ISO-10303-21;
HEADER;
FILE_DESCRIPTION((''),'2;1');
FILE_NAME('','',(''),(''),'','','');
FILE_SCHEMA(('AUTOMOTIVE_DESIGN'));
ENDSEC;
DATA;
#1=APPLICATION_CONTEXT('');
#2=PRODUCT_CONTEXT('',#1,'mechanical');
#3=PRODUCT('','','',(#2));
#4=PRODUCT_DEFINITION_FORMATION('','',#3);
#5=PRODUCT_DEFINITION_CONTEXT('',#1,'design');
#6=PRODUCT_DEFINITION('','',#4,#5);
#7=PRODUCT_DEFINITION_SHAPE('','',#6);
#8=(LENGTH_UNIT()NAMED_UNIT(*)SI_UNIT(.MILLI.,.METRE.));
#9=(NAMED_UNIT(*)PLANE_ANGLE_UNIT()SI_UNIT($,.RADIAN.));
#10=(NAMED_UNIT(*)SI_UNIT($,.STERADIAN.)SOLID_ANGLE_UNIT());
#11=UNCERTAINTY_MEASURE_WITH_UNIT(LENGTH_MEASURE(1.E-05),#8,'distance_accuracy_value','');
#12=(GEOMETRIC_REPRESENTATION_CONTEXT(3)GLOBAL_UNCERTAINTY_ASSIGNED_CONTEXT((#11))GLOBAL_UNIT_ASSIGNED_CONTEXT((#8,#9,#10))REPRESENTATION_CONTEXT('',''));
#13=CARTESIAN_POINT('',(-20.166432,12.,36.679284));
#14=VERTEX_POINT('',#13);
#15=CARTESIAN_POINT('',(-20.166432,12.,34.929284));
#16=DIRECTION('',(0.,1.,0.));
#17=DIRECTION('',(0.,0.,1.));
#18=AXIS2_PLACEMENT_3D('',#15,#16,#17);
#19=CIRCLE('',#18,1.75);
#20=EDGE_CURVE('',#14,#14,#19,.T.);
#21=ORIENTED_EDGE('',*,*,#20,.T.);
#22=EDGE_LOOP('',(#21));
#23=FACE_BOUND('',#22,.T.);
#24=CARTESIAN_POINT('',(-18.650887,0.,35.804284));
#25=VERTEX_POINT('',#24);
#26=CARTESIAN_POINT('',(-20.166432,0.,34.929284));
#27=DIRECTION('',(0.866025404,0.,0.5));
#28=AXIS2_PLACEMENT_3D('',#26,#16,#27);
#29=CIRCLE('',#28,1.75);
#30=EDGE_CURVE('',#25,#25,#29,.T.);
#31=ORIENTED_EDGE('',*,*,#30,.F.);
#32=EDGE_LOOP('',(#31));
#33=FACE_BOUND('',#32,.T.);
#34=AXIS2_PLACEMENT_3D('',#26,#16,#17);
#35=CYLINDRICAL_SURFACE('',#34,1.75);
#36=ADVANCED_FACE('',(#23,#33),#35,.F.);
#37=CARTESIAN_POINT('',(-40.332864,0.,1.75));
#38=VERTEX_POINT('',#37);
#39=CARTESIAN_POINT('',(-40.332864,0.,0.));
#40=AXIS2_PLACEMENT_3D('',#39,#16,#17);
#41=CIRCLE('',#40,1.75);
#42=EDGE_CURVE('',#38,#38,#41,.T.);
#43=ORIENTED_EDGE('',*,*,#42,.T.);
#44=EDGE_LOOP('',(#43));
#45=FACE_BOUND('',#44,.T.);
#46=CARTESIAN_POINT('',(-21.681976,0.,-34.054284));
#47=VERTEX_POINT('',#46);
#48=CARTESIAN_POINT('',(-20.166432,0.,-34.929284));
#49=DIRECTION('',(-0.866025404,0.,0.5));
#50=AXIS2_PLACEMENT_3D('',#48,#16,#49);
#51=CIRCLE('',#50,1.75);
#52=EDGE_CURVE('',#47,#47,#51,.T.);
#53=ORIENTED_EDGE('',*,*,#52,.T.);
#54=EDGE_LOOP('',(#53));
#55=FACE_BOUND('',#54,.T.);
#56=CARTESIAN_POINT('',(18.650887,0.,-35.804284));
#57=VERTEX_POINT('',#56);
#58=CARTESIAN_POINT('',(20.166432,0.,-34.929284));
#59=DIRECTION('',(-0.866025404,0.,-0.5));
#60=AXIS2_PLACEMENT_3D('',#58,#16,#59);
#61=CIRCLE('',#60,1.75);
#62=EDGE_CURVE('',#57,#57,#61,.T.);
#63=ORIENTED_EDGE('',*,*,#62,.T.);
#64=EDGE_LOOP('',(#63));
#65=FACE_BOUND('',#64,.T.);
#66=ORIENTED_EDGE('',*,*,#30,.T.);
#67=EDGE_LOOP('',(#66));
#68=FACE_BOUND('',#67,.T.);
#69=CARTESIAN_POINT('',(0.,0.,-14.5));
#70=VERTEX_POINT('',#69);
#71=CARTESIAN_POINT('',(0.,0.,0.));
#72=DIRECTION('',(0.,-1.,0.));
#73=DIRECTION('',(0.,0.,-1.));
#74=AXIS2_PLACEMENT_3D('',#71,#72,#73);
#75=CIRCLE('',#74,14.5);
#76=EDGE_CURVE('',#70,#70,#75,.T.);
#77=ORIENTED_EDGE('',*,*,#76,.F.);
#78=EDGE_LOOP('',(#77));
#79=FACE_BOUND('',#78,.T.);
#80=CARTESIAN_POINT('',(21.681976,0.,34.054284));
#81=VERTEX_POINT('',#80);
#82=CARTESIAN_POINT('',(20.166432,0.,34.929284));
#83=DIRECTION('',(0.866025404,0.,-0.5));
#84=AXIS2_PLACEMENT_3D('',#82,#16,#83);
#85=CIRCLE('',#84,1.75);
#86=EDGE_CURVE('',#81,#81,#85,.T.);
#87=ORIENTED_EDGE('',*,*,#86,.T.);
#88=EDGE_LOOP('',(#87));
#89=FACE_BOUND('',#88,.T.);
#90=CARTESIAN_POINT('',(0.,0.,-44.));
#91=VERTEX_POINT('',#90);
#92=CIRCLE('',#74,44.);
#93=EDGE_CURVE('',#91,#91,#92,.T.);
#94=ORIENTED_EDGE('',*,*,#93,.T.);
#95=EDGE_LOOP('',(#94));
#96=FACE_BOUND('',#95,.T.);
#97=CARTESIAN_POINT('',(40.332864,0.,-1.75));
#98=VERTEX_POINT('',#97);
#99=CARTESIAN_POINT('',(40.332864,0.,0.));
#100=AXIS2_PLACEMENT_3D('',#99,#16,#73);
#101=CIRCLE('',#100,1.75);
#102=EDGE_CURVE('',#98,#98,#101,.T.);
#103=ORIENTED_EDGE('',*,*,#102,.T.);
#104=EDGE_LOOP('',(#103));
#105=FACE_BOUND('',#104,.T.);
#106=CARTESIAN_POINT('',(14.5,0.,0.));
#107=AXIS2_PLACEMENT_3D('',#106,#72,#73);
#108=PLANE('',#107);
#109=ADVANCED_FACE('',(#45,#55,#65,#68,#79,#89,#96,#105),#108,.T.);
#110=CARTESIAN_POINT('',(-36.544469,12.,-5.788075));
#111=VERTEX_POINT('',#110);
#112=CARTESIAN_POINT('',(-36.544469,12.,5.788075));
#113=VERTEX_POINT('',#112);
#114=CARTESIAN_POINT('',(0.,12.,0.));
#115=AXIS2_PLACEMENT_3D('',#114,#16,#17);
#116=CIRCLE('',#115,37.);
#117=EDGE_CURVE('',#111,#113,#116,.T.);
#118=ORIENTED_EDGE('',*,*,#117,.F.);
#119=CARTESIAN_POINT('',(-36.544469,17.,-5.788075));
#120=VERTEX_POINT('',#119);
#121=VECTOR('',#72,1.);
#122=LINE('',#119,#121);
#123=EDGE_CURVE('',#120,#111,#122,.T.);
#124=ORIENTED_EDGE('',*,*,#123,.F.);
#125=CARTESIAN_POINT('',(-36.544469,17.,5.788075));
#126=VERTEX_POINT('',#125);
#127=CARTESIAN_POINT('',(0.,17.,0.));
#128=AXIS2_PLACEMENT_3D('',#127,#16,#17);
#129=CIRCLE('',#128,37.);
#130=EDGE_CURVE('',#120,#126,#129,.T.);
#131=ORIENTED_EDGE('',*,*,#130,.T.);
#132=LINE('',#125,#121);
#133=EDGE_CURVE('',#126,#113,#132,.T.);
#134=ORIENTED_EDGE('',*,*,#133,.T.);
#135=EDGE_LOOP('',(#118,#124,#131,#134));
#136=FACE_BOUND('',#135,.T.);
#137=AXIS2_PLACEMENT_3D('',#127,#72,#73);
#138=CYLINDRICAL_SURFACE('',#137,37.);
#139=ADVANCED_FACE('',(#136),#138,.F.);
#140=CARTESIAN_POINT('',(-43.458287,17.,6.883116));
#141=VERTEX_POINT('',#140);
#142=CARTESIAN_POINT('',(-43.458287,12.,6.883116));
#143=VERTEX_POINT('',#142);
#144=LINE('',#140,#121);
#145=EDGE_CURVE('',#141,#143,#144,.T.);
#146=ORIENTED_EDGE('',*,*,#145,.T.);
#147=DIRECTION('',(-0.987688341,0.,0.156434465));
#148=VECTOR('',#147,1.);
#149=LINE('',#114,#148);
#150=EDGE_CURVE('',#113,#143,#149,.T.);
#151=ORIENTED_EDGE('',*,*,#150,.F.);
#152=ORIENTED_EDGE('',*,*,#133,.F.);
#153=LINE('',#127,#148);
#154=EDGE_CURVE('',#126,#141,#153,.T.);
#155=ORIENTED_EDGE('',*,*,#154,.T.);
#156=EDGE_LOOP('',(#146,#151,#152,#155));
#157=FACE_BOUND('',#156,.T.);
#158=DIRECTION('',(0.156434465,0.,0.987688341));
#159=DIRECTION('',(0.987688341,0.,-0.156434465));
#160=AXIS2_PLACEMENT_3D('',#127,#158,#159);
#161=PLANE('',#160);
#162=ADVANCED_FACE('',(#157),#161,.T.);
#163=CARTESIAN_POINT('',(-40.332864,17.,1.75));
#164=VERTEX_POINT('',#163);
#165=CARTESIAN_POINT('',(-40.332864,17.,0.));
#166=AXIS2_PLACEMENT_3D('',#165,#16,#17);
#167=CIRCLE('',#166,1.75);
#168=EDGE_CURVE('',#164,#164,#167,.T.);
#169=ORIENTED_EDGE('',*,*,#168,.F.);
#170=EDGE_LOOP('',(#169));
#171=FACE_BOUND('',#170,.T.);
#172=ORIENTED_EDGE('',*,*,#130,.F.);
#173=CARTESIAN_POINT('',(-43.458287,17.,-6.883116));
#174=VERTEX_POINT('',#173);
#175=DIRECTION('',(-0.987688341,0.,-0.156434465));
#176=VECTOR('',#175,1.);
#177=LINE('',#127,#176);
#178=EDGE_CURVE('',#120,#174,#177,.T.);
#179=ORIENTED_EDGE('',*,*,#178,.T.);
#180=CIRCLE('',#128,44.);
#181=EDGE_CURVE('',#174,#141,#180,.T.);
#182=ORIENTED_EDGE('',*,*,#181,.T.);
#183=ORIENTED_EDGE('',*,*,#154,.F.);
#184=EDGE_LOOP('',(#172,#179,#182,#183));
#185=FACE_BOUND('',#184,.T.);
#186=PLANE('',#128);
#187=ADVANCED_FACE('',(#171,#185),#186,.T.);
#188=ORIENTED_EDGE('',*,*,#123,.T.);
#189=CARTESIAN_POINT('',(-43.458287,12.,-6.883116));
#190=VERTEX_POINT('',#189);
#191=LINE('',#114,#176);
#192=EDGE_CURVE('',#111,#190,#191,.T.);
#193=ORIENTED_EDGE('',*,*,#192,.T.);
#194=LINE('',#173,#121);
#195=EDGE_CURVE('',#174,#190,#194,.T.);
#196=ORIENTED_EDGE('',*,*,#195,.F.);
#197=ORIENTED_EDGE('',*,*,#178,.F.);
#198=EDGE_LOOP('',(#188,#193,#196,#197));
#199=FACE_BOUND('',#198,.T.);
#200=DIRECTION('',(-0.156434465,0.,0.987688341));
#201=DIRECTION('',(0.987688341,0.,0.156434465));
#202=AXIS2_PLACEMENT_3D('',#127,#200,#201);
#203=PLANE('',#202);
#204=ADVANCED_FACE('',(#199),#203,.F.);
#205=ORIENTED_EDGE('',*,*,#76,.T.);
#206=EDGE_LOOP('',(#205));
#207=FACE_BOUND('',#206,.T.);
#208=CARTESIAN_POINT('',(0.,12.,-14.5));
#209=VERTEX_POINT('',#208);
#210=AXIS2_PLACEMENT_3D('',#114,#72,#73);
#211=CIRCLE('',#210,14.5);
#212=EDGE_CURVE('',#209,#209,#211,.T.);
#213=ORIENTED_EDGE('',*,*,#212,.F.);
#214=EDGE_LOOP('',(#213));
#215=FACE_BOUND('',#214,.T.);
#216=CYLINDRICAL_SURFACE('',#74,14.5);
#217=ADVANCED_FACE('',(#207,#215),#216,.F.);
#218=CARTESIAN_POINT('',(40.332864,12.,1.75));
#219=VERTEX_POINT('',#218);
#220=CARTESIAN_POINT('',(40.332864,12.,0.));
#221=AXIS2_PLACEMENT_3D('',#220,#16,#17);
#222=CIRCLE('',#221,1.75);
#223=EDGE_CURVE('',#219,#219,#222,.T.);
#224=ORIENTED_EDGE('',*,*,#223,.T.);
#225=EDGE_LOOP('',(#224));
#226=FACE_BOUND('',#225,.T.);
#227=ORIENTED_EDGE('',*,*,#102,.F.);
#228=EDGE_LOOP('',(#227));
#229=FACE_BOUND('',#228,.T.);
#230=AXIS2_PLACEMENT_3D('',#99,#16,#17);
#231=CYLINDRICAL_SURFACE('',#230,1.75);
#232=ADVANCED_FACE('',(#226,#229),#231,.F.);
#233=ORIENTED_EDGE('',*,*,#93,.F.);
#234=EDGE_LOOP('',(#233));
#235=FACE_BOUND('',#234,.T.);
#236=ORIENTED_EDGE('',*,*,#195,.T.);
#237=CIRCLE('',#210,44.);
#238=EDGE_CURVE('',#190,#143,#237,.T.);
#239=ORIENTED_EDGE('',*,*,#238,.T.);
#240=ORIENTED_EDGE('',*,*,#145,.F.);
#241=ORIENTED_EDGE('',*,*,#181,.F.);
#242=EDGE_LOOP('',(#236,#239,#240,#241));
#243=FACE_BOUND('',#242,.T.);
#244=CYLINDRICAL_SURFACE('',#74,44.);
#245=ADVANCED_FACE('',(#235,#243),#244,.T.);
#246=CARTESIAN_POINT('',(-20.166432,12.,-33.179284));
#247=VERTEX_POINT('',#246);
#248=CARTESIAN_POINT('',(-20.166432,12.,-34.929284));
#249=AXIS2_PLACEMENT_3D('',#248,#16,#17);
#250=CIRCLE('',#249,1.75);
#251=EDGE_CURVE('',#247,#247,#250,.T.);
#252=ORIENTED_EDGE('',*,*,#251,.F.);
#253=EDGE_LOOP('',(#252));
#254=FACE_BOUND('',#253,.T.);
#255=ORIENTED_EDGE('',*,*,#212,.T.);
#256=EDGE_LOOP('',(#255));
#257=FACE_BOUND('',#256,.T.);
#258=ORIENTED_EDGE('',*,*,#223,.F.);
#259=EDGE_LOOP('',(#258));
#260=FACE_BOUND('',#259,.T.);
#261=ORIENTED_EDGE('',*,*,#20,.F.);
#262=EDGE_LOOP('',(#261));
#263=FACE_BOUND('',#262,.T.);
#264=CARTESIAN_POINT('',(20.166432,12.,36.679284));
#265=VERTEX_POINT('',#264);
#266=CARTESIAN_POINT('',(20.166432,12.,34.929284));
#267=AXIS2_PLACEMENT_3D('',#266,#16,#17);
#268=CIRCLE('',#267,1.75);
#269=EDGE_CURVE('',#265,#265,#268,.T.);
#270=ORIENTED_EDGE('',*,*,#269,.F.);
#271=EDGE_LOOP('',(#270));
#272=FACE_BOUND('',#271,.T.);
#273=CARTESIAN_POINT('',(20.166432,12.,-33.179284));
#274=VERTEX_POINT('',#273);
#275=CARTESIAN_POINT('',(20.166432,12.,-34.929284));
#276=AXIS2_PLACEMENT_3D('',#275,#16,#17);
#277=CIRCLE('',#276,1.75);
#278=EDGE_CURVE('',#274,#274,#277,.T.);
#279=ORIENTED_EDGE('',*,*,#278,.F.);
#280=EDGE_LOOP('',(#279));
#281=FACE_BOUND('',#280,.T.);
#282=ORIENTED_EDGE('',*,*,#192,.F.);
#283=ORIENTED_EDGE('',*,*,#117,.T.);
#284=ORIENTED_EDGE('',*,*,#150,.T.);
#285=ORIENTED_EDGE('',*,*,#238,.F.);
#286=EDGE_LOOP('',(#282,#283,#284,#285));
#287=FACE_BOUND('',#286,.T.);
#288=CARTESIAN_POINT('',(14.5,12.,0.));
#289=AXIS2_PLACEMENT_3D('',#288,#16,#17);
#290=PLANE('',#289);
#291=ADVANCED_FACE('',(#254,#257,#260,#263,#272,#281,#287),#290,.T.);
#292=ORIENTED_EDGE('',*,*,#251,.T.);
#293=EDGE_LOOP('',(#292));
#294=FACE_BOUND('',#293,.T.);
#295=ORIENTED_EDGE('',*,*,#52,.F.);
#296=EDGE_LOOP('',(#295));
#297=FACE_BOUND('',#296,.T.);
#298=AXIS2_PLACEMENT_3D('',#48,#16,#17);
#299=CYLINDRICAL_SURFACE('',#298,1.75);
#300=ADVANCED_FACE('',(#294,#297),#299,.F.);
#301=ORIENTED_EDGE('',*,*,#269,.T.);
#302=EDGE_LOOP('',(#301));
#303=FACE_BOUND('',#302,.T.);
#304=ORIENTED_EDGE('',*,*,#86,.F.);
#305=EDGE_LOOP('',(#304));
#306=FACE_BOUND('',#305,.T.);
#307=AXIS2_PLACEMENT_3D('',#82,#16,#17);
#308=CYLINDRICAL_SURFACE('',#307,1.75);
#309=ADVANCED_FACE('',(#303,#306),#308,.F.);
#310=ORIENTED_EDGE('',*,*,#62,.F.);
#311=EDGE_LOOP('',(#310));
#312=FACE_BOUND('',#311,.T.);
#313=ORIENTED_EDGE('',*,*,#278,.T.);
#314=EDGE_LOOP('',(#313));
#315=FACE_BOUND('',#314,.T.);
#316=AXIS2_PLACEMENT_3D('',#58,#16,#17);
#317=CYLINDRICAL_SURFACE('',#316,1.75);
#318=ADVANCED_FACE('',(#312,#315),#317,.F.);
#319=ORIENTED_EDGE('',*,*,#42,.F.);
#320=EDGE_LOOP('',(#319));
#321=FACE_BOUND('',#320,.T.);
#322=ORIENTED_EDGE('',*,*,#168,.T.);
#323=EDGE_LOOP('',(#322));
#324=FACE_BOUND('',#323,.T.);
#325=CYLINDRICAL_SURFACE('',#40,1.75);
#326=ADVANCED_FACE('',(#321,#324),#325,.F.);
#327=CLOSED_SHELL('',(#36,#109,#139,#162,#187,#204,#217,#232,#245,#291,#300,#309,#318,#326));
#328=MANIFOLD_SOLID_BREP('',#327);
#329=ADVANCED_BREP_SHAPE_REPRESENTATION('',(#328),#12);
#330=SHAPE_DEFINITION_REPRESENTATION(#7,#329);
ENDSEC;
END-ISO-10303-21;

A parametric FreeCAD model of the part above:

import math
import FreeCAD as App
import Part
import Sketcher
from FreeCAD import Vector
Q = App.Units.Quantity


def add_polygon(sketch, points):
    """Adds a closed chain of lines whose ends are joined by coincident constraints."""
    first, n = sketch.GeometryCount, len(points)
    for a, b in zip(points, points[1:] + points[:1]):
        sketch.addGeometry(Part.LineSegment(App.Vector(*a, 0), App.Vector(*b, 0)), False)
    for i in range(n):
        sketch.addConstraint(Sketcher.Constraint("Coincident", first + i, 2, first + (i + 1) % n, 1))

doc = App.newDocument("Part")
body = doc.addObject("PartDesign::Body", "Body")

sketch1 = doc.addObject("Sketcher::SketchObject", "Sketch")
body.addObject(sketch1)
sketch1.AttachmentSupport = (doc.XY_Plane, [""])
sketch1.MapMode = "FlatFace"
add_polygon(sketch1, [(14.5, 12), (14.5, 0), (44, 0), (44, 12)])
sketch1.addConstraint(Sketcher.Constraint("Vertical", 0))
sketch1.addConstraint(Sketcher.Constraint("Horizontal", 1))
sketch1.addConstraint(Sketcher.Constraint("Vertical", 2))
sketch1.addConstraint(Sketcher.Constraint("Horizontal", 3))
sketch1.addConstraint(Sketcher.Constraint("PointOnObject", 0, 2, -1))
sketch1.addConstraint(Sketcher.Constraint("DistanceY", 0, 2, 0, 1, 12.0))
sketch1.addConstraint(Sketcher.Constraint("DistanceX", 1, 1, 1, 2, 29.5))
sketch1.addConstraint(Sketcher.Constraint("DistanceX", -1, 1, 1, 2, 44.0))
revolution = doc.addObject("PartDesign::Revolution", "Revolution")
body.addObject(revolution)
revolution.Profile = sketch1
revolution.ReferenceAxis = (sketch1, ["V_Axis"])
revolution.Angle = 360

sketch2 = doc.addObject("Sketcher::SketchObject", "Sketch001")
body.addObject(sketch2)
sketch2.AttachmentSupport = (doc.XZ_Plane, [""])
sketch2.MapMode = "FlatFace"
sketch2.AttachmentOffset = App.Placement(Vector(0, 0, -17), App.Rotation())
sketch2.addGeometry(Part.ArcOfCircle(Part.Circle(Vector(0, 0, 0), Vector(0, 0, 1), 37), math.radians(-180), math.radians(-171)), False)
sketch2.addGeometry(Part.LineSegment(Vector(-36.544469, -5.788075, 0), Vector(-43.458287, -6.883116, 0)), False)
sketch2.addGeometry(Part.ArcOfCircle(Part.Circle(Vector(0, 0, 0), Vector(0, 0, 1), 44), math.radians(-180), math.radians(-171)), False)
sketch2.addGeometry(Part.ArcOfCircle(Part.Circle(Vector(0, 0, 0), Vector(0, 0, 1), 44), math.radians(171), math.radians(180)), False)
sketch2.addGeometry(Part.LineSegment(Vector(-43.458287, 6.883116, 0), Vector(-36.544469, 5.788075, 0)), False)
sketch2.addGeometry(Part.ArcOfCircle(Part.Circle(Vector(0, 0, 0), Vector(0, 0, 1), 37), math.radians(171), math.radians(180)), False)
sketch2.addConstraint(Sketcher.Constraint("Coincident", 0, 2, 1, 1))
sketch2.addConstraint(Sketcher.Constraint("Coincident", 1, 2, 2, 2))
sketch2.addConstraint(Sketcher.Constraint("Tangent", 2, 1, 3, 2))
sketch2.addConstraint(Sketcher.Constraint("Coincident", 3, 1, 4, 1))
sketch2.addConstraint(Sketcher.Constraint("Coincident", 4, 2, 5, 1))
sketch2.addConstraint(Sketcher.Constraint("Tangent", 5, 2, 0, 1))
sketch2.addConstraint(Sketcher.Constraint("Coincident", 0, 3, -1, 1))
sketch2.addConstraint(Sketcher.Constraint("Coincident", 2, 3, -1, 1))
sketch2.addConstraint(Sketcher.Constraint("Equal", 2, 3))
sketch2.addConstraint(Sketcher.Constraint("Equal", 0, 5))
sketch2.addConstraint(Sketcher.Constraint("PointOnObject", 2, 1, -1))
sketch2.addConstraint(Sketcher.Constraint("PointOnObject", 5, 2, -1))
sketch2.addConstraint(Sketcher.Constraint("Vertical", 1, 2, 3, 1))
sketch2.addConstraint(Sketcher.Constraint("Vertical", 0, 2, 4, 2))
sketch2.addConstraint(Sketcher.Constraint("Radius", 0, 37.0))
sketch2.addConstraint(Sketcher.Constraint("Radius", 2, 44.0))
sketch2.addConstraint(Sketcher.Constraint("Angle", 1, Q("-171 deg")))
sketch2.addConstraint(Sketcher.Constraint("DistanceX", 0, 2, -1, 1, 36.544469))
pad1 = doc.addObject("PartDesign::Pad", "Pad")
body.addObject(pad1)
pad1.Profile = sketch2
pad1.Length = 5

sketch3 = doc.addObject("Sketcher::SketchObject", "Sketch002")
body.addObject(sketch3)
sketch3.AttachmentSupport = (doc.XZ_Plane, [""])
sketch3.MapMode = "FlatFace"
sketch3.AttachmentOffset = App.Placement(Vector(0, 0, -17), App.Rotation())
sketch3.addGeometry(Part.Circle(Vector(-40.332864, 0, 0), Vector(0, 0, 1), 1.75), False)
sketch3.addConstraint(Sketcher.Constraint("PointOnObject", 0, 3, -1))
sketch3.addConstraint(Sketcher.Constraint("Diameter", 0, 3.5))
sketch3.addConstraint(Sketcher.Constraint("DistanceX", 0, 3, -1, 1, 40.332864))
pocket1 = doc.addObject("PartDesign::Pocket", "Pocket")
body.addObject(pocket1)
pocket1.Profile = sketch3
pocket1.Type = "ThroughAll"
pocket1.Reversed = True
doc.recompute()

polarpattern = doc.addObject("PartDesign::PolarPattern", "PolarPattern")
body.addObject(polarpattern)
polarpattern.Originals = [pocket1]
polarpattern.Axis = (doc.Y_Axis, [""])
polarpattern.Angle = 360
polarpattern.Occurrences = 6
body.Tip = polarpattern

doc.recompute()
